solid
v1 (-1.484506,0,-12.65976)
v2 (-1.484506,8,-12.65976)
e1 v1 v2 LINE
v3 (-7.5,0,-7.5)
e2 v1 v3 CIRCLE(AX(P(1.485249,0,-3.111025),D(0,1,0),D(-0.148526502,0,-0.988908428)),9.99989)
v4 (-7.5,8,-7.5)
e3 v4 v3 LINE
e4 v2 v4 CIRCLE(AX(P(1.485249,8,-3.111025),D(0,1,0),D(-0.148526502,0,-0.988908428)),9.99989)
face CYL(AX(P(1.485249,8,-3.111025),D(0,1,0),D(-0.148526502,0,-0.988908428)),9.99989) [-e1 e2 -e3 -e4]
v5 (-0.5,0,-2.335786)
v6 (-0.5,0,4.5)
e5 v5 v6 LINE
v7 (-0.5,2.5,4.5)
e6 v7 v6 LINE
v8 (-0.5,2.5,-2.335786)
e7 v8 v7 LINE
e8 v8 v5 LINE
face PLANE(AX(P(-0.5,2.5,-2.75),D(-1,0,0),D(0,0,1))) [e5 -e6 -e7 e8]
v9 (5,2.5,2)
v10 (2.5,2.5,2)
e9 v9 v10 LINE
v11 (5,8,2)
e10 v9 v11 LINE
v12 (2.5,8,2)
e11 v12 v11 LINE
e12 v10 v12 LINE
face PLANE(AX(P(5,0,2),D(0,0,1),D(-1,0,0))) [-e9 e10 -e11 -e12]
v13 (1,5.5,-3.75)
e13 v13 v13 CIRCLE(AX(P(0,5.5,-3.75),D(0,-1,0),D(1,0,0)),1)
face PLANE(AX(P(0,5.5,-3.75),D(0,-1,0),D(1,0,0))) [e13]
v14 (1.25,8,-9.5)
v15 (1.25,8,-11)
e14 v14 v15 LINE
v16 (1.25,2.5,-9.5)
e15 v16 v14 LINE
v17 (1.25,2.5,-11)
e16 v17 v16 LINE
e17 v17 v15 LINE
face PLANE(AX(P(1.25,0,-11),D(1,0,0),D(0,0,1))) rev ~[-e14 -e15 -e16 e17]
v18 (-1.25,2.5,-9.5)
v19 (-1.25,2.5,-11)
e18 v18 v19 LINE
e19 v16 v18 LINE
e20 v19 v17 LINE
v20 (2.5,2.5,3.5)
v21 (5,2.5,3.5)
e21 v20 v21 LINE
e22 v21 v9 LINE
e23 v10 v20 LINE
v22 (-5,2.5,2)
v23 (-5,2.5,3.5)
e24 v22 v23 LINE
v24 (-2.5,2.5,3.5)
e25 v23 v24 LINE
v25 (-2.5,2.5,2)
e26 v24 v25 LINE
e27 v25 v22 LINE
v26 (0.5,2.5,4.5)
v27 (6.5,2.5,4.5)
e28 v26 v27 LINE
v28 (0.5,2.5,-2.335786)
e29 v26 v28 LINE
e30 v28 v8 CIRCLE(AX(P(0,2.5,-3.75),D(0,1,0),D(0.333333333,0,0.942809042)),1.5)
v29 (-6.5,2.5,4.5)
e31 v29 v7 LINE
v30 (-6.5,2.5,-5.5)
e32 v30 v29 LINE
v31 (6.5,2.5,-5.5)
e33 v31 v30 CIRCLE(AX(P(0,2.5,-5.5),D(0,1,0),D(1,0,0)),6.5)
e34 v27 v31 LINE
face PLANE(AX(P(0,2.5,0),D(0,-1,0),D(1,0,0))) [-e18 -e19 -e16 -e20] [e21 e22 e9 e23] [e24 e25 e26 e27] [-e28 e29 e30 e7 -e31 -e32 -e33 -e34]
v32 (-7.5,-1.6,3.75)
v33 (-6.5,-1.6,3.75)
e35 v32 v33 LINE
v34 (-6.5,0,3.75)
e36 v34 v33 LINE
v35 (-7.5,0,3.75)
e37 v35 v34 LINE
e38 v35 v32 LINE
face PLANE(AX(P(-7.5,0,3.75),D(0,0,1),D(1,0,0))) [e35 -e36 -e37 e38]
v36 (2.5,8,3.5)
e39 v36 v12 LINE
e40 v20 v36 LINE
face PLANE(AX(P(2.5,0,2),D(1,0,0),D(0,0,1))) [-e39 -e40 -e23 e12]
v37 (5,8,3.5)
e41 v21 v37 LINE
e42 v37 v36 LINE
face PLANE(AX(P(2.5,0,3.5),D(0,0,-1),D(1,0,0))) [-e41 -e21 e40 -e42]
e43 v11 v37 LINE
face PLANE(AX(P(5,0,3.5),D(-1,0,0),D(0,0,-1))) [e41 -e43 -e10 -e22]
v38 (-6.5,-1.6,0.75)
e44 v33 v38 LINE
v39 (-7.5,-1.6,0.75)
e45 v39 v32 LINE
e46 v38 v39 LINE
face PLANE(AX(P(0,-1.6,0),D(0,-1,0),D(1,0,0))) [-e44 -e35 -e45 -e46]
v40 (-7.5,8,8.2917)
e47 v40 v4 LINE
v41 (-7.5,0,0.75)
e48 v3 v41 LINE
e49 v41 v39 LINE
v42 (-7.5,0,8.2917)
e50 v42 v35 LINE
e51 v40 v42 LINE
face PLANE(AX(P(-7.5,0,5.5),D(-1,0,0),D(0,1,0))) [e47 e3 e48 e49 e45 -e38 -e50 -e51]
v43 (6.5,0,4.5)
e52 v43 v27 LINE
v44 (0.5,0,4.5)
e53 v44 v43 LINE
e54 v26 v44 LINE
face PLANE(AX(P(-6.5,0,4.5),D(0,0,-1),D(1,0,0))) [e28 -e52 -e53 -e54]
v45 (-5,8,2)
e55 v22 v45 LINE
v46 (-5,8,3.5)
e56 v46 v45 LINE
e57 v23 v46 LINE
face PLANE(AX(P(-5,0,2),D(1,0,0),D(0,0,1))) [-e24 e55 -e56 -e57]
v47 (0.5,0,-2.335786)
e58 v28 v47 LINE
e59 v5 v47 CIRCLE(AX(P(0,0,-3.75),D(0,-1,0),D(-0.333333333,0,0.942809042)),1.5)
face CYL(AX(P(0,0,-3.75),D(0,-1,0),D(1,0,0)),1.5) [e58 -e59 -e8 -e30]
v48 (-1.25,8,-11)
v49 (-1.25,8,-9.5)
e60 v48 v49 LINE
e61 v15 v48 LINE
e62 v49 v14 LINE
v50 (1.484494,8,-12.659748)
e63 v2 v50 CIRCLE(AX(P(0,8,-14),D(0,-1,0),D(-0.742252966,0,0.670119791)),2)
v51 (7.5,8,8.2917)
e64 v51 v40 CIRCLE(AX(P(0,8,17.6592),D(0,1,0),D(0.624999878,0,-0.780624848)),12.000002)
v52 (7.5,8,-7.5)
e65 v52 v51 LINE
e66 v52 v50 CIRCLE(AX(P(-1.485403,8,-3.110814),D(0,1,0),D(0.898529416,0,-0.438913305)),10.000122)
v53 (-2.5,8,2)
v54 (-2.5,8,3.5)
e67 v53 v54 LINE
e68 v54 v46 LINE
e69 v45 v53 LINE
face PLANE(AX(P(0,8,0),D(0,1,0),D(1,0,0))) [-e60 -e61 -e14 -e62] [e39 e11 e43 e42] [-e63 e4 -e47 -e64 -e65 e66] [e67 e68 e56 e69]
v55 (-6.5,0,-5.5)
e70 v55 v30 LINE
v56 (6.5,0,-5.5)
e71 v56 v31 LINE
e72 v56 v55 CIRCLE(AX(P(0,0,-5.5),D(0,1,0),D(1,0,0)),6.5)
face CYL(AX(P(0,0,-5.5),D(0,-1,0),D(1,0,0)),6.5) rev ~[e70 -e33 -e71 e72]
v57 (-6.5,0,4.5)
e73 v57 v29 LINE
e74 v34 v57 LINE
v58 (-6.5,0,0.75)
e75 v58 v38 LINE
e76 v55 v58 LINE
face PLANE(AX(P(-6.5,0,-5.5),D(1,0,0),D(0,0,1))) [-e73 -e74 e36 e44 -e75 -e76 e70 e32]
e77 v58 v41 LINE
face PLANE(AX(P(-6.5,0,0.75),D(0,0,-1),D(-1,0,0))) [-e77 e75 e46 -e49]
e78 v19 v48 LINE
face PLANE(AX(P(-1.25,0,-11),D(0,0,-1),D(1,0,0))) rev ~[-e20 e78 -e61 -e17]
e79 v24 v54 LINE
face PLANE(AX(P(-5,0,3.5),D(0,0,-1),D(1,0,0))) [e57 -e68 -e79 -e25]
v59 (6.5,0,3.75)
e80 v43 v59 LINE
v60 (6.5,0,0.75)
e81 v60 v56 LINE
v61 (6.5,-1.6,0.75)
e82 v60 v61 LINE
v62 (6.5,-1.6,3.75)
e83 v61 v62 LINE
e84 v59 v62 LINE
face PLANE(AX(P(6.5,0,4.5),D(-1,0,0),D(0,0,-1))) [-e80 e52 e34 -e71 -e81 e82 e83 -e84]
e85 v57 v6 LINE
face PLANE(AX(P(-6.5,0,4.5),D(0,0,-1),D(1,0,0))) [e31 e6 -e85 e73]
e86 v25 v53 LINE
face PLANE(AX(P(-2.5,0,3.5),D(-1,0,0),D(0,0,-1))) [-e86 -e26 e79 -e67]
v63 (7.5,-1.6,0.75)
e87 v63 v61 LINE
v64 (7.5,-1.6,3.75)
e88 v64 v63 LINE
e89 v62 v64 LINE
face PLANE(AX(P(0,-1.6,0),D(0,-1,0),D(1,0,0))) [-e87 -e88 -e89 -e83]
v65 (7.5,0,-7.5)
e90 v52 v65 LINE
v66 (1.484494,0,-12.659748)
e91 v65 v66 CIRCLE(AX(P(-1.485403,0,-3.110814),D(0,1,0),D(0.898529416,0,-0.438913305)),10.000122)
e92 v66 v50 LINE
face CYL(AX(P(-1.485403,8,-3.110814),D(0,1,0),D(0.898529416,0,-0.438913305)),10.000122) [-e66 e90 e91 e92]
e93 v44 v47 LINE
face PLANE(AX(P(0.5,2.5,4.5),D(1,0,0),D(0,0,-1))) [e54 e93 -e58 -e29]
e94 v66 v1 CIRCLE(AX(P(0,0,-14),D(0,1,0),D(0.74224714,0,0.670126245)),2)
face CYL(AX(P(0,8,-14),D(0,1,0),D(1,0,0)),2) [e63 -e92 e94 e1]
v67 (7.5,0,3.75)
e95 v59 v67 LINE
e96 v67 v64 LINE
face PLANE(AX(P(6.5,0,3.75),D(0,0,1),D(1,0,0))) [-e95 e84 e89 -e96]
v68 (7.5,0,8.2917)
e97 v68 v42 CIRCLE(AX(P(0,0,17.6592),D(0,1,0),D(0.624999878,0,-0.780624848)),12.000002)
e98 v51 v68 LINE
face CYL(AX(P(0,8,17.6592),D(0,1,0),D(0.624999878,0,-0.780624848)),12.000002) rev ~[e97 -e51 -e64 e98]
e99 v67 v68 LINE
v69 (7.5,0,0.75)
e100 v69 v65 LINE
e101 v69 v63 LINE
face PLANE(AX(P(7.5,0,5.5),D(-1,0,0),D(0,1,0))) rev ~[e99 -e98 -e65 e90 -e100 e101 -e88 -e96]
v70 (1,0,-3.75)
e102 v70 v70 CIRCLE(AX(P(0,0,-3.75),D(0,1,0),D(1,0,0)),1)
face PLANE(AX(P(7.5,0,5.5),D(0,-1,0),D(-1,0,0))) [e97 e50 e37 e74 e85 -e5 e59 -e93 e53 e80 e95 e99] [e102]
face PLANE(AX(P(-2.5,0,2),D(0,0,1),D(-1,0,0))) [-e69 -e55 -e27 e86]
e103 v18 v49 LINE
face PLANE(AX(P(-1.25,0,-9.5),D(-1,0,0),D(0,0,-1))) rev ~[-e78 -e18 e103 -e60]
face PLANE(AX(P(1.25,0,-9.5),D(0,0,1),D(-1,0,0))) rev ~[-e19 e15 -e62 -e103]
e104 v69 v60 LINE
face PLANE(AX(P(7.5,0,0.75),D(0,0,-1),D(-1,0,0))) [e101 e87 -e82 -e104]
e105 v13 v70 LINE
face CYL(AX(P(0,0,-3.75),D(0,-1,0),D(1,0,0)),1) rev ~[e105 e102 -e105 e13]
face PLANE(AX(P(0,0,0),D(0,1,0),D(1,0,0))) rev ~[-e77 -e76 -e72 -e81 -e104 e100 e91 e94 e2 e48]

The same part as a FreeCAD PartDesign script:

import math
import FreeCAD as App
import Part
import Sketcher

V = App.Vector


def add_polygon(sketch, points):
    """Adds a closed chain of lines whose ends are joined by coincident constraints."""
    first, n = sketch.GeometryCount, len(points)
    for a, b in zip(points, points[1:] + points[:1]):
        sketch.addGeometry(Part.LineSegment(App.Vector(*a, 0), App.Vector(*b, 0)), False)
    for i in range(n):
        sketch.addConstraint(Sketcher.Constraint("Coincident", first + i, 2, first + (i + 1) % n, 1))

doc = App.newDocument("Part")
params = doc.addObject("Spreadsheet::Sheet", "Params")
for row, (alias, value) in enumerate([
    ("sketch1_radius", "7.5 mm"),
    ("sketch1_height", "11 mm"),
    ("pad1_length", "8 mm"),
    ("sketch2_width", "1 mm"),
    ("sketch2_height", "3 mm"),
    ("pad2_length", "1.6 mm"),
    ("sketch3_diameter", "2 mm"),
    ("sketch3_diameter2", "3 mm"),
    ("sketch3_radius", "6.5 mm"),
    ("sketch3_height", "10 mm"),
    ("pocket1_length", "2.5 mm"),
    ("sketch4_width", "2.5 mm"),
    ("sketch4_height", "1.5 mm"),
    ("pocket2_length", "10 mm"),
    ("sketch5_width", "1 mm"),
    ("sketch5_height", "7.25 mm"),
    ("pad3_length", "2.5 mm"),
    ("sketch6_width", "15 mm"),
    ("sketch6_height", "8 mm"),
    ("pad4_length", "6 mm"),
    ("sketch7_radius", "12 mm"),
    ("pocket3_length", "8 mm"),
    ("sketch8_radius", "7.5 mm"),
    ("pad5_length", "8 mm"),
    ("sketch9_radius", "10 mm"),
    ("sketch9_width", "15 mm"),
    ("pocket4_length", "10 mm"),
    ("sketch10_diameter", "4 mm"),
    ("pad6_length", "8 mm"),
    ("sketch11_diameter", "2 mm"),
    ("pocket5_length", "3 mm"),
], start=1):
    params.set(f"A{row}", alias)
    params.set(f"B{row}", "=" + value)
    params.setAlias(f"B{row}", alias)

body = doc.addObject("PartDesign::Body", "Body")

# Sketch on XZ plane
sketch1 = body.newObject("Sketcher::SketchObject", "Sketch")
sketch1.AttachmentSupport = (doc.getObject("XZ_Plane"), [""])
sketch1.MapMode = "FlatFace"
sketch1.addGeometry(Part.LineSegment(V(-8, 6, 0), V(8, 6, 0)), False)
sketch1.addGeometry(Part.LineSegment(V(8, 6, 0), V(8, -6, 0)), False)
sketch1.addGeometry(Part.ArcOfCircle(Part.Circle(V(0, -6, 0), V(0, 0, 1), 8), math.radians(180), math.radians(360)), False)
sketch1.addGeometry(Part.LineSegment(V(-8, -6, 0), V(-8, 6, 0)), False)
sketch1.addConstraint(Sketcher.Constraint("Coincident", 0, 2, 1, 1))
sketch1.addConstraint(Sketcher.Constraint("Tangent", 1, 2, 2, 2))
sketch1.addConstraint(Sketcher.Constraint("Tangent", 2, 1, 3, 1))
sketch1.addConstraint(Sketcher.Constraint("Coincident", 3, 2, 0, 1))
sketch1.addConstraint(Sketcher.Constraint("Horizontal", 0))
sketch1.addConstraint(Sketcher.Constraint("Vertical", 1))
sketch1.addConstraint(Sketcher.Constraint("Vertical", 3))
sketch1.addConstraint(Sketcher.Constraint("Symmetric", 0, 2, 2, 1, -1, 1))
sketch1.addConstraint(Sketcher.Constraint("Radius", 2, 7.5))
sketch1.addConstraint(Sketcher.Constraint("DistanceY", 1, 2, 1, 1, 11.0))
sketch1.setExpression("Constraints[8]", "Params.sketch1_radius")
sketch1.setExpression("Constraints[9]", "Params.sketch1_height")
pad1 = body.newObject("PartDesign::Pad", "Pad")
pad1.Profile = sketch1
pad1.setExpression("Length", "Params.pad1_length")
pad1.Reversed = True

# Sketch on XZ plane
sketch2 = body.newObject("Sketcher::SketchObject", "Sketch001")
sketch2.AttachmentSupport = (doc.getObject("XZ_Plane"), [""])
sketch2.MapMode = "FlatFace"
add_polygon(sketch2, [(-7.5, 3.8), (-7.5, 0.8), (-6.5, 0.8), (-6.5, 3.8)])  # lines 0-3
add_polygon(sketch2, [(7.5, 0.8), (7.5, 3.8), (6.5, 3.8), (6.5, 0.8)])  # lines 4-7
sketch2.addConstraint(Sketcher.Constraint("Vertical", 0))
sketch2.addConstraint(Sketcher.Constraint("Horizontal", 1))
sketch2.addConstraint(Sketcher.Constraint("Vertical", 2))
sketch2.addConstraint(Sketcher.Constraint("Horizontal", 3))
sketch2.addConstraint(Sketcher.Constraint("Vertical", 4))
sketch2.addConstraint(Sketcher.Constraint("Horizontal", 5))
sketch2.addConstraint(Sketcher.Constraint("Vertical", 6))
sketch2.addConstraint(Sketcher.Constraint("Horizontal", 7))
sketch2.addConstraint(Sketcher.Constraint("Symmetric", 3, 2, 4, 2, -2))
sketch2.addConstraint(Sketcher.Constraint("Symmetric", 1, 2, 6, 2, -2))
sketch2.addConstraint(Sketcher.Constraint("DistanceX", 1, 1, 1, 2, 1.0))
sketch2.addConstraint(Sketcher.Constraint("DistanceY", 0, 2, 0, 1, 3.0))
sketch2.addConstraint(Sketcher.Constraint("DistanceX", 3, 2, 4, 2, 15.0))
sketch2.addConstraint(Sketcher.Constraint("DistanceY", -1, 1, 0, 2, 0.75))
sketch2.setExpression("Constraints[18]", "Params.sketch2_width")
sketch2.setExpression("Constraints[19]", "Params.sketch2_height")
pad2 = body.newObject("PartDesign::Pad", "Pad001")
pad2.Profile = sketch2
pad2.setExpression("Length", "Params.pad2_length")

# Sketch on XZ plane
sketch3 = body.newObject("Sketcher::SketchObject", "Sketch002")
sketch3.AttachmentSupport = (doc.getObject("XZ_Plane"), [""])
sketch3.MapMode = "FlatFace"
sketch3.addGeometry(Part.Circle(V(0, -3.8, 0), V(0, 0, 1), 1), False)
sketch3.addGeometry(Part.LineSegment(V(6.5, 4.5, 0), V(-6.5, 4.5, 0)), False)
sketch3.addGeometry(Part.LineSegment(V(-6.5, 4.5, 0), V(-6.5, -5.5, 0)), False)
sketch3.addGeometry(Part.ArcOfCircle(Part.Circle(V(0, -5.5, 0), V(0, 0, 1), 6.5), math.radians(180), math.radians(360)), False)
sketch3.addGeometry(Part.LineSegment(V(6.5, -5.5, 0), V(6.5, 4.5, 0)), False)
sketch3.addGeometry(Part.Circle(V(0, -3.8, 0), V(0, 0, 1), 1.5), False)
sketch3.addConstraint(Sketcher.Constraint("Coincident", 1, 2, 2, 1))
sketch3.addConstraint(Sketcher.Constraint("Tangent", 2, 2, 3, 1))
sketch3.addConstraint(Sketcher.Constraint("Tangent", 3, 2, 4, 1))
sketch3.addConstraint(Sketcher.Constraint("Coincident", 4, 2, 1, 1))
sketch3.addConstraint(Sketcher.Constraint("Horizontal", 1))
sketch3.addConstraint(Sketcher.Constraint("Vertical", 2))
sketch3.addConstraint(Sketcher.Constraint("Vertical", 4))
sketch3.addConstraint(Sketcher.Constraint("Coincident", 5, 3, 0, 3))
sketch3.addConstraint(Sketcher.Constraint("PointOnObject", 0, 3, -2))
sketch3.addConstraint(Sketcher.Constraint("PointOnObject", 3, 3, -2))
sketch3.addConstraint(Sketcher.Constraint("Diameter", 0, 2.0))
sketch3.addConstraint(Sketcher.Constraint("Diameter", 5, 3.0))
sketch3.addConstraint(Sketcher.Constraint("Radius", 3, 6.5))
sketch3.addConstraint(Sketcher.Constraint("DistanceY", 2, 2, 2, 1, 10.0))
sketch3.addConstraint(Sketcher.Constraint("DistanceY", 0, 3, -1, 1, 3.75))
sketch3.addConstraint(Sketcher.Constraint("DistanceY", 3, 3, -1, 1, 5.5))
sketch3.setExpression("Constraints[10]", "Params.sketch3_diameter")
sketch3.setExpression("Constraints[11]", "Params.sketch3_diameter2")
sketch3.setExpression("Constraints[12]", "Params.sketch3_radius")
sketch3.setExpression("Constraints[13]", "Params.sketch3_height")
pocket1 = body.newObject("PartDesign::Pocket", "Pocket")
pocket1.Profile = sketch3
pocket1.setExpression("Length", "Params.pocket1_length")

# Sketch on XZ plane
sketch4 = body.newObject("Sketcher::SketchObject", "Sketch003")
sketch4.AttachmentSupport = (doc.getObject("XZ_Plane"), [""])
sketch4.MapMode = "FlatFace"
add_polygon(sketch4, [(-2.5, 3.5), (-5, 3.5), (-5, 2), (-2.5, 2)])  # lines 0-3
add_polygon(sketch4, [(5, 3.5), (2.5, 3.5), (2.5, 2), (5, 2)])  # lines 4-7
add_polygon(sketch4, [(-1.2, -9.5), (-1.2, -11), (1.2, -11), (1.2, -9.5)])  # lines 8-11
sketch4.addConstraint(Sketcher.Constraint("Horizontal", 0))
sketch4.addConstraint(Sketcher.Constraint("Vertical", 1))
sketch4.addConstraint(Sketcher.Constraint("Horizontal", 2))
sketch4.addConstraint(Sketcher.Constraint("Vertical", 3))
sketch4.addConstraint(Sketcher.Constraint("Horizontal", 4))
sketch4.addConstraint(Sketcher.Constraint("Vertical", 5))
sketch4.addConstraint(Sketcher.Constraint("Horizontal", 6))
sketch4.addConstraint(Sketcher.Constraint("Vertical", 7))
sketch4.addConstraint(Sketcher.Constraint("Vertical", 8))
sketch4.addConstraint(Sketcher.Constraint("Horizontal", 9))
sketch4.addConstraint(Sketcher.Constraint("Vertical", 10))
sketch4.addConstraint(Sketcher.Constraint("Horizontal", 11))
sketch4.addConstraint(Sketcher.Constraint("Symmetric", 3, 2, 4, 2, -2))
sketch4.addConstraint(Sketcher.Constraint("Symmetric", 1, 2, 6, 2, -2))
sketch4.addConstraint(Sketcher.Constraint("Equal", 6, 9))
sketch4.addConstraint(Sketcher.Constraint("Equal", 7, 8))
sketch4.addConstraint(Sketcher.Constraint("DistanceX", 0, 2, 0, 1, 2.5))
sketch4.addConstraint(Sketcher.Constraint("DistanceY", 1, 2, 1, 1, 1.5))
sketch4.addConstraint(Sketcher.Constraint("DistanceY", 8, 2, 2, 2, 13.0))
sketch4.addConstraint(Sketcher.Constraint("DistanceX", 2, 2, -1, 1, 2.5))
sketch4.addConstraint(Sketcher.Constraint("DistanceX", 1, 2, 8, 2, 3.75))
sketch4.addConstraint(Sketcher.Constraint("DistanceY", -1, 1, 1, 2, 2.0))
sketch4.setExpression("Constraints[28]", "Params.sketch4_width")
sketch4.setExpression("Constraints[29]", "Params.sketch4_height")
pocket2 = body.newObject("PartDesign::Pocket", "Pocket001")
pocket2.Profile = sketch4
pocket2.setExpression("Length", "Params.pocket2_length")

# Sketch on XZ plane
sketch5 = body.newObject("Sketcher::SketchObject", "Sketch004")
sketch5.AttachmentSupport = (doc.getObject("XZ_Plane"), [""])
sketch5.MapMode = "FlatFace"
sketch5.AttachmentOffset = App.Placement(V(0, 0, -2.5), App.Rotation())
add_polygon(sketch5, [(0.5, 4.5), (-0.5, 4.5), (-0.5, -2.8), (0.5, -2.8)])  # lines 0-3
sketch5.addConstraint(Sketcher.Constraint("Horizontal", 0))
sketch5.addConstraint(Sketcher.Constraint("Vertical", 1))
sketch5.addConstraint(Sketcher.Constraint("Horizontal", 2))
sketch5.addConstraint(Sketcher.Constraint("Vertical", 3))
sketch5.addConstraint(Sketcher.Constraint("DistanceX", 0, 2, 0, 1, 1.0))
sketch5.addConstraint(Sketcher.Constraint("DistanceY", 1, 2, 1, 1, 7.25))
sketch5.addConstraint(Sketcher.Constraint("DistanceX", 0, 2, -1, 1, 0.5))
sketch5.addConstraint(Sketcher.Constraint("DistanceY", -1, 1, 0, 2, 4.5))
sketch5.setExpression("Constraints[8]", "Params.sketch5_width")
sketch5.setExpression("Constraints[9]", "Params.sketch5_height")
pad3 = body.newObject("PartDesign::Pad", "Pad002")
pad3.Profile = sketch5
pad3.setExpression("Length", "Params.pad3_length")

# Sketch on XY plane
sketch6 = body.newObject("Sketcher::SketchObject", "Sketch005")
sketch6.AttachmentSupport = (doc.getObject("XY_Plane"), [""])
sketch6.MapMode = "FlatFace"
sketch6.AttachmentOffset = App.Placement(V(0, 0, 5.5), App.Rotation())
add_polygon(sketch6, [(-8, 0), (8, 0), (8, 8), (-8, 8)])  # lines 0-3
sketch6.addConstraint(Sketcher.Constraint("Horizontal", 0))
sketch6.addConstraint(Sketcher.Constraint("Vertical", 1))
sketch6.addConstraint(Sketcher.Constraint("Horizontal", 2))
sketch6.addConstraint(Sketcher.Constraint("Vertical", 3))
sketch6.addConstraint(Sketcher.Constraint("Symmetric", 0, 2, 3, 2, -1, 1))
sketch6.addConstraint(Sketcher.Constraint("DistanceX", 0, 1, 0, 2, 15.0))
sketch6.addConstraint(Sketcher.Constraint("DistanceY", 1, 1, 1, 2, 8.0))
sketch6.setExpression("Constraints[9]", "Params.sketch6_width")
sketch6.setExpression("Constraints[10]", "Params.sketch6_height")
pad4 = body.newObject("PartDesign::Pad", "Pad003")
pad4.Profile = sketch6
pad4.setExpression("Length", "Params.pad4_length")

# Sketch on XZ plane
sketch7 = body.newObject("Sketcher::SketchObject", "Sketch006")
sketch7.AttachmentSupport = (doc.getObject("XZ_Plane"), [""])
sketch7.MapMode = "FlatFace"
sketch7.AttachmentOffset = App.Placement(V(0, 0, -8), App.Rotation())
sketch7.addGeometry(Part.ArcOfCircle(Part.Circle(V(0, 18, 0), V(0, 0, 1), 12), math.radians(-129), math.radians(-51)), False)
sketch7.addGeometry(Part.LineSegment(V(-8, 8, 0), V(-8, 18, 0)), False)
sketch7.addGeometry(Part.LineSegment(V(-8, 18, 0), V(8, 18, 0)), False)
sketch7.addGeometry(Part.LineSegment(V(8, 18, 0), V(8, 8, 0)), False)
sketch7.addConstraint(Sketcher.Constraint("Coincident", 0, 1, 1, 1))
sketch7.addConstraint(Sketcher.Constraint("Coincident", 1, 2, 2, 1))
sketch7.addConstraint(Sketcher.Constraint("Coincident", 2, 2, 3, 1))
sketch7.addConstraint(Sketcher.Constraint("Coincident", 3, 2, 0, 2))
sketch7.addConstraint(Sketcher.Constraint("Vertical", 1))
sketch7.addConstraint(Sketcher.Constraint("Horizontal", 2))
sketch7.addConstraint(Sketcher.Constraint("Symmetric", 0, 1, 3, 2, -2))
sketch7.addConstraint(Sketcher.Constraint("Radius", 0, 12.0))
sketch7.addConstraint(Sketcher.Constraint("DistanceX", 0, 1, 3, 2, 15.0))
sketch7.addConstraint(Sketcher.Constraint("Distance", 3, 9.603))
sketch7.addConstraint(Sketcher.Constraint("DistanceX", 2, 1, 2, 2, 15.7387))
sketch7.addConstraint(Sketcher.Constraint("DistanceY", -1, 1, 0, 3, 17.6592))
sketch7.setExpression("Constraints[7]", "Params.sketch7_radius")
pocket3 = body.newObject("PartDesign::Pocket", "Pocket002")
pocket3.Profile = sketch7
pocket3.setExpression("Length", "Params.pocket3_length")
pocket3.Reversed = True

# Sketch on XZ plane
sketch8 = body.newObject("Sketcher::SketchObject", "Sketch007")
sketch8.AttachmentSupport = (doc.getObject("XZ_Plane"), [""])
sketch8.MapMode = "FlatFace"
sketch8.AttachmentOffset = App.Placement(V(0, 0, -8), App.Rotation())
sketch8.addGeometry(Part.LineSegment(V(3.9, -13.1, 0), V(3.9, -11.9, 0)), False)
sketch8.addGeometry(Part.ArcOfCircle(Part.Circle(V(0, -5.5, 0), V(0, 0, 1), 7.5), math.radians(-59), math.radians(0)), False)
sketch8.addGeometry(Part.LineSegment(V(7.5, -5.5, 0), V(7.5, -13.1, 0)), False)
sketch8.addGeometry(Part.LineSegment(V(7.5, -13.1, 0), V(3.9, -13.1, 0)), False)
sketch8.addGeometry(Part.LineSegment(V(-7.5, -13.5, 0), V(-7.5, -5.5, 0)), False)
sketch8.addGeometry(Part.ArcOfCircle(Part.Circle(V(0, -5.5, 0), V(0, 0, 1), 7.5), math.radians(180), math.radians(233)), False)
sketch8.addGeometry(Part.LineSegment(V(-4.6, -11.5, 0), V(-4.6, -13.5, 0)), False)
sketch8.addGeometry(Part.LineSegment(V(-4.6, -13.5, 0), V(-7.5, -13.5, 0)), False)
sketch8.addConstraint(Sketcher.Constraint("Coincident", 0, 2, 1, 1))
sketch8.addConstraint(Sketcher.Constraint("Tangent", 1, 2, 2, 1))
sketch8.addConstraint(Sketcher.Constraint("Coincident", 2, 2, 3, 1))
sketch8.addConstraint(Sketcher.Constraint("Coincident", 3, 2, 0, 1))
sketch8.addConstraint(Sketcher.Constraint("Tangent", 4, 2, 5, 1))
sketch8.addConstraint(Sketcher.Constraint("Coincident", 5, 2, 6, 1))
sketch8.addConstraint(Sketcher.Constraint("Coincident", 6, 2, 7, 1))
sketch8.addConstraint(Sketcher.Constraint("Coincident", 7, 2, 4, 1))
sketch8.addConstraint(Sketcher.Constraint("Vertical", 0))
sketch8.addConstraint(Sketcher.Constraint("Vertical", 2))
sketch8.addConstraint(Sketcher.Constraint("Horizontal", 3))
sketch8.addConstraint(Sketcher.Constraint("Vertical", 4))
sketch8.addConstraint(Sketcher.Constraint("Vertical", 6))
sketch8.addConstraint(Sketcher.Constraint("Horizontal", 7))
sketch8.addConstraint(Sketcher.Constraint("Coincident", 5, 3, 1, 3))
sketch8.addConstraint(Sketcher.Constraint("Equal", 1, 5))
sketch8.addConstraint(Sketcher.Constraint("PointOnObject", 1, 3, -2))
sketch8.addConstraint(Sketcher.Constraint("Radius", 1, 7.5))
sketch8.addConstraint(Sketcher.Constraint("DistanceY", 1, 3, -1, 1, 5.5))
sketch8.addConstraint(Sketcher.Constraint("DistanceY", 0, 1, 0, 2, 1.187))
sketch8.addConstraint(Sketcher.Constraint("DistanceY", 3, 2, 5, 2, 1.66))
sketch8.addConstraint(Sketcher.Constraint("DistanceX", 3, 2, 3, 1, 3.6368))
sketch8.addConstraint(Sketcher.Constraint("DistanceY", 4, 1, 4, 2, 7.9633))
sketch8.setExpression("Constraints[17]", "Params.sketch8_radius")
pad5 = body.newObject("PartDesign::Pad", "Pad004")
pad5.Profile = sketch8
pad5.setExpression("Length", "Params.pad5_length")

# Sketch on XZ plane
sketch9 = body.newObject("Sketcher::SketchObject", "Sketch008")
sketch9.AttachmentSupport = (doc.getObject("XZ_Plane"), [""])
sketch9.MapMode = "FlatFace"
sketch9.AttachmentOffset = App.Placement(V(0, 0, -8), App.Rotation())
sketch9.addGeometry(Part.ArcOfCircle(Part.Circle(V(-1, -3, 0), V(0, 0, 1), 10), math.radians(-81), math.radians(-26)), False)
sketch9.addGeometry(Part.LineSegment(V(8, -8, 0), V(8, -19, 0)), False)
sketch9.addGeometry(Part.LineSegment(V(8, -19, 0), V(-8, -19, 0)), False)
sketch9.addGeometry(Part.LineSegment(V(-8, -19, 0), V(-8, -8, 0)), False)
sketch9.addGeometry(Part.ArcOfCircle(Part.Circle(V(1, -3, 0), V(0, 0, 1), 10), math.radians(-154), math.radians(-99)), False)
sketch9.addConstraint(Sketcher.Constraint("Coincident", 0, 2, 1, 1))
sketch9.addConstraint(Sketcher.Constraint("Coincident", 1, 2, 2, 1))
sketch9.addConstraint(Sketcher.Constraint("Coincident", 2, 2, 3, 1))
sketch9.addConstraint(Sketcher.Constraint("Coincident", 3, 2, 4, 1))
sketch9.addConstraint(Sketcher.Constraint("Coincident", 4, 2, 0, 1))
sketch9.addConstraint(Sketcher.Constraint("Vertical", 1))
sketch9.addConstraint(Sketcher.Constraint("Horizontal", 2))
sketch9.addConstraint(Sketcher.Constraint("Vertical", 3))
sketch9.addConstraint(Sketcher.Constraint("Equal", 0, 4))
sketch9.addConstraint(Sketcher.Constraint("Symmetric", 0, 3, 4, 3, -2))
sketch9.addConstraint(Sketcher.Constraint("Horizontal", 0, 2, 3, 2))
sketch9.addConstraint(Sketcher.Constraint("Radius", 0, 10.0))
sketch9.addConstraint(Sketcher.Constraint("DistanceX", 2, 2, 2, 1, 15.0))
sketch9.addConstraint(Sketcher.Constraint("DistanceY", 4, 2, -1, 1, 13.0))
sketch9.addConstraint(Sketcher.Constraint("DistanceY", 0, 2, -1, 1, 7.5))
sketch9.addConstraint(Sketcher.Constraint("DistanceY", 1, 2, 1, 1, 11.8065))
sketch9.setExpression("Constraints[11]", "Params.sketch9_radius")
sketch9.setExpression("Constraints[12]", "Params.sketch9_width")
pocket4 = body.newObject("PartDesign::Pocket", "Pocket003")
pocket4.Profile = sketch9
pocket4.setExpression("Length", "Params.pocket4_length")
pocket4.Reversed = True

# Sketch on XZ plane
sketch10 = body.newObject("Sketcher::SketchObject", "Sketch009")
sketch10.AttachmentSupport = (doc.getObject("XZ_Plane"), [""])
sketch10.MapMode = "FlatFace"
sketch10.AttachmentOffset = App.Placement(V(0, 0, -8), App.Rotation())
sketch10.addGeometry(Part.Circle(V(0, -14, 0), V(0, 0, 1), 2), False)
sketch10.addConstraint(Sketcher.Constraint("PointOnObject", 0, 3, -2))
sketch10.addConstraint(Sketcher.Constraint("Diameter", 0, 4.0))
sketch10.addConstraint(Sketcher.Constraint("DistanceY", 0, 3, -1, 1, 14.0))
sketch10.setExpression("Constraints[1]", "Params.sketch10_diameter")
pad6 = body.newObject("PartDesign::Pad", "Pad005")
pad6.Profile = sketch10
pad6.setExpression("Length", "Params.pad6_length")

# Sketch on XZ plane
sketch11 = body.newObject("Sketcher::SketchObject", "Sketch010")
sketch11.AttachmentSupport = (doc.getObject("XZ_Plane"), [""])
sketch11.MapMode = "FlatFace"
sketch11.AttachmentOffset = App.Placement(V(0, 0, -2.5), App.Rotation())
sketch11.addGeometry(Part.Circle(V(0, -3.8, 0), V(0, 0, 1), 1), False)
sketch11.addConstraint(Sketcher.Constraint("PointOnObject", 0, 3, -2))
sketch11.addConstraint(Sketcher.Constraint("Diameter", 0, 2.0))
sketch11.addConstraint(Sketcher.Constraint("DistanceY", 0, 3, -1, 1, 3.75))
sketch11.setExpression("Constraints[1]", "Params.sketch11_diameter")
pocket5 = body.newObject("PartDesign::Pocket", "Pocket004")
pocket5.Profile = sketch11
pocket5.setExpression("Length", "Params.pocket5_length")

doc.recompute()
